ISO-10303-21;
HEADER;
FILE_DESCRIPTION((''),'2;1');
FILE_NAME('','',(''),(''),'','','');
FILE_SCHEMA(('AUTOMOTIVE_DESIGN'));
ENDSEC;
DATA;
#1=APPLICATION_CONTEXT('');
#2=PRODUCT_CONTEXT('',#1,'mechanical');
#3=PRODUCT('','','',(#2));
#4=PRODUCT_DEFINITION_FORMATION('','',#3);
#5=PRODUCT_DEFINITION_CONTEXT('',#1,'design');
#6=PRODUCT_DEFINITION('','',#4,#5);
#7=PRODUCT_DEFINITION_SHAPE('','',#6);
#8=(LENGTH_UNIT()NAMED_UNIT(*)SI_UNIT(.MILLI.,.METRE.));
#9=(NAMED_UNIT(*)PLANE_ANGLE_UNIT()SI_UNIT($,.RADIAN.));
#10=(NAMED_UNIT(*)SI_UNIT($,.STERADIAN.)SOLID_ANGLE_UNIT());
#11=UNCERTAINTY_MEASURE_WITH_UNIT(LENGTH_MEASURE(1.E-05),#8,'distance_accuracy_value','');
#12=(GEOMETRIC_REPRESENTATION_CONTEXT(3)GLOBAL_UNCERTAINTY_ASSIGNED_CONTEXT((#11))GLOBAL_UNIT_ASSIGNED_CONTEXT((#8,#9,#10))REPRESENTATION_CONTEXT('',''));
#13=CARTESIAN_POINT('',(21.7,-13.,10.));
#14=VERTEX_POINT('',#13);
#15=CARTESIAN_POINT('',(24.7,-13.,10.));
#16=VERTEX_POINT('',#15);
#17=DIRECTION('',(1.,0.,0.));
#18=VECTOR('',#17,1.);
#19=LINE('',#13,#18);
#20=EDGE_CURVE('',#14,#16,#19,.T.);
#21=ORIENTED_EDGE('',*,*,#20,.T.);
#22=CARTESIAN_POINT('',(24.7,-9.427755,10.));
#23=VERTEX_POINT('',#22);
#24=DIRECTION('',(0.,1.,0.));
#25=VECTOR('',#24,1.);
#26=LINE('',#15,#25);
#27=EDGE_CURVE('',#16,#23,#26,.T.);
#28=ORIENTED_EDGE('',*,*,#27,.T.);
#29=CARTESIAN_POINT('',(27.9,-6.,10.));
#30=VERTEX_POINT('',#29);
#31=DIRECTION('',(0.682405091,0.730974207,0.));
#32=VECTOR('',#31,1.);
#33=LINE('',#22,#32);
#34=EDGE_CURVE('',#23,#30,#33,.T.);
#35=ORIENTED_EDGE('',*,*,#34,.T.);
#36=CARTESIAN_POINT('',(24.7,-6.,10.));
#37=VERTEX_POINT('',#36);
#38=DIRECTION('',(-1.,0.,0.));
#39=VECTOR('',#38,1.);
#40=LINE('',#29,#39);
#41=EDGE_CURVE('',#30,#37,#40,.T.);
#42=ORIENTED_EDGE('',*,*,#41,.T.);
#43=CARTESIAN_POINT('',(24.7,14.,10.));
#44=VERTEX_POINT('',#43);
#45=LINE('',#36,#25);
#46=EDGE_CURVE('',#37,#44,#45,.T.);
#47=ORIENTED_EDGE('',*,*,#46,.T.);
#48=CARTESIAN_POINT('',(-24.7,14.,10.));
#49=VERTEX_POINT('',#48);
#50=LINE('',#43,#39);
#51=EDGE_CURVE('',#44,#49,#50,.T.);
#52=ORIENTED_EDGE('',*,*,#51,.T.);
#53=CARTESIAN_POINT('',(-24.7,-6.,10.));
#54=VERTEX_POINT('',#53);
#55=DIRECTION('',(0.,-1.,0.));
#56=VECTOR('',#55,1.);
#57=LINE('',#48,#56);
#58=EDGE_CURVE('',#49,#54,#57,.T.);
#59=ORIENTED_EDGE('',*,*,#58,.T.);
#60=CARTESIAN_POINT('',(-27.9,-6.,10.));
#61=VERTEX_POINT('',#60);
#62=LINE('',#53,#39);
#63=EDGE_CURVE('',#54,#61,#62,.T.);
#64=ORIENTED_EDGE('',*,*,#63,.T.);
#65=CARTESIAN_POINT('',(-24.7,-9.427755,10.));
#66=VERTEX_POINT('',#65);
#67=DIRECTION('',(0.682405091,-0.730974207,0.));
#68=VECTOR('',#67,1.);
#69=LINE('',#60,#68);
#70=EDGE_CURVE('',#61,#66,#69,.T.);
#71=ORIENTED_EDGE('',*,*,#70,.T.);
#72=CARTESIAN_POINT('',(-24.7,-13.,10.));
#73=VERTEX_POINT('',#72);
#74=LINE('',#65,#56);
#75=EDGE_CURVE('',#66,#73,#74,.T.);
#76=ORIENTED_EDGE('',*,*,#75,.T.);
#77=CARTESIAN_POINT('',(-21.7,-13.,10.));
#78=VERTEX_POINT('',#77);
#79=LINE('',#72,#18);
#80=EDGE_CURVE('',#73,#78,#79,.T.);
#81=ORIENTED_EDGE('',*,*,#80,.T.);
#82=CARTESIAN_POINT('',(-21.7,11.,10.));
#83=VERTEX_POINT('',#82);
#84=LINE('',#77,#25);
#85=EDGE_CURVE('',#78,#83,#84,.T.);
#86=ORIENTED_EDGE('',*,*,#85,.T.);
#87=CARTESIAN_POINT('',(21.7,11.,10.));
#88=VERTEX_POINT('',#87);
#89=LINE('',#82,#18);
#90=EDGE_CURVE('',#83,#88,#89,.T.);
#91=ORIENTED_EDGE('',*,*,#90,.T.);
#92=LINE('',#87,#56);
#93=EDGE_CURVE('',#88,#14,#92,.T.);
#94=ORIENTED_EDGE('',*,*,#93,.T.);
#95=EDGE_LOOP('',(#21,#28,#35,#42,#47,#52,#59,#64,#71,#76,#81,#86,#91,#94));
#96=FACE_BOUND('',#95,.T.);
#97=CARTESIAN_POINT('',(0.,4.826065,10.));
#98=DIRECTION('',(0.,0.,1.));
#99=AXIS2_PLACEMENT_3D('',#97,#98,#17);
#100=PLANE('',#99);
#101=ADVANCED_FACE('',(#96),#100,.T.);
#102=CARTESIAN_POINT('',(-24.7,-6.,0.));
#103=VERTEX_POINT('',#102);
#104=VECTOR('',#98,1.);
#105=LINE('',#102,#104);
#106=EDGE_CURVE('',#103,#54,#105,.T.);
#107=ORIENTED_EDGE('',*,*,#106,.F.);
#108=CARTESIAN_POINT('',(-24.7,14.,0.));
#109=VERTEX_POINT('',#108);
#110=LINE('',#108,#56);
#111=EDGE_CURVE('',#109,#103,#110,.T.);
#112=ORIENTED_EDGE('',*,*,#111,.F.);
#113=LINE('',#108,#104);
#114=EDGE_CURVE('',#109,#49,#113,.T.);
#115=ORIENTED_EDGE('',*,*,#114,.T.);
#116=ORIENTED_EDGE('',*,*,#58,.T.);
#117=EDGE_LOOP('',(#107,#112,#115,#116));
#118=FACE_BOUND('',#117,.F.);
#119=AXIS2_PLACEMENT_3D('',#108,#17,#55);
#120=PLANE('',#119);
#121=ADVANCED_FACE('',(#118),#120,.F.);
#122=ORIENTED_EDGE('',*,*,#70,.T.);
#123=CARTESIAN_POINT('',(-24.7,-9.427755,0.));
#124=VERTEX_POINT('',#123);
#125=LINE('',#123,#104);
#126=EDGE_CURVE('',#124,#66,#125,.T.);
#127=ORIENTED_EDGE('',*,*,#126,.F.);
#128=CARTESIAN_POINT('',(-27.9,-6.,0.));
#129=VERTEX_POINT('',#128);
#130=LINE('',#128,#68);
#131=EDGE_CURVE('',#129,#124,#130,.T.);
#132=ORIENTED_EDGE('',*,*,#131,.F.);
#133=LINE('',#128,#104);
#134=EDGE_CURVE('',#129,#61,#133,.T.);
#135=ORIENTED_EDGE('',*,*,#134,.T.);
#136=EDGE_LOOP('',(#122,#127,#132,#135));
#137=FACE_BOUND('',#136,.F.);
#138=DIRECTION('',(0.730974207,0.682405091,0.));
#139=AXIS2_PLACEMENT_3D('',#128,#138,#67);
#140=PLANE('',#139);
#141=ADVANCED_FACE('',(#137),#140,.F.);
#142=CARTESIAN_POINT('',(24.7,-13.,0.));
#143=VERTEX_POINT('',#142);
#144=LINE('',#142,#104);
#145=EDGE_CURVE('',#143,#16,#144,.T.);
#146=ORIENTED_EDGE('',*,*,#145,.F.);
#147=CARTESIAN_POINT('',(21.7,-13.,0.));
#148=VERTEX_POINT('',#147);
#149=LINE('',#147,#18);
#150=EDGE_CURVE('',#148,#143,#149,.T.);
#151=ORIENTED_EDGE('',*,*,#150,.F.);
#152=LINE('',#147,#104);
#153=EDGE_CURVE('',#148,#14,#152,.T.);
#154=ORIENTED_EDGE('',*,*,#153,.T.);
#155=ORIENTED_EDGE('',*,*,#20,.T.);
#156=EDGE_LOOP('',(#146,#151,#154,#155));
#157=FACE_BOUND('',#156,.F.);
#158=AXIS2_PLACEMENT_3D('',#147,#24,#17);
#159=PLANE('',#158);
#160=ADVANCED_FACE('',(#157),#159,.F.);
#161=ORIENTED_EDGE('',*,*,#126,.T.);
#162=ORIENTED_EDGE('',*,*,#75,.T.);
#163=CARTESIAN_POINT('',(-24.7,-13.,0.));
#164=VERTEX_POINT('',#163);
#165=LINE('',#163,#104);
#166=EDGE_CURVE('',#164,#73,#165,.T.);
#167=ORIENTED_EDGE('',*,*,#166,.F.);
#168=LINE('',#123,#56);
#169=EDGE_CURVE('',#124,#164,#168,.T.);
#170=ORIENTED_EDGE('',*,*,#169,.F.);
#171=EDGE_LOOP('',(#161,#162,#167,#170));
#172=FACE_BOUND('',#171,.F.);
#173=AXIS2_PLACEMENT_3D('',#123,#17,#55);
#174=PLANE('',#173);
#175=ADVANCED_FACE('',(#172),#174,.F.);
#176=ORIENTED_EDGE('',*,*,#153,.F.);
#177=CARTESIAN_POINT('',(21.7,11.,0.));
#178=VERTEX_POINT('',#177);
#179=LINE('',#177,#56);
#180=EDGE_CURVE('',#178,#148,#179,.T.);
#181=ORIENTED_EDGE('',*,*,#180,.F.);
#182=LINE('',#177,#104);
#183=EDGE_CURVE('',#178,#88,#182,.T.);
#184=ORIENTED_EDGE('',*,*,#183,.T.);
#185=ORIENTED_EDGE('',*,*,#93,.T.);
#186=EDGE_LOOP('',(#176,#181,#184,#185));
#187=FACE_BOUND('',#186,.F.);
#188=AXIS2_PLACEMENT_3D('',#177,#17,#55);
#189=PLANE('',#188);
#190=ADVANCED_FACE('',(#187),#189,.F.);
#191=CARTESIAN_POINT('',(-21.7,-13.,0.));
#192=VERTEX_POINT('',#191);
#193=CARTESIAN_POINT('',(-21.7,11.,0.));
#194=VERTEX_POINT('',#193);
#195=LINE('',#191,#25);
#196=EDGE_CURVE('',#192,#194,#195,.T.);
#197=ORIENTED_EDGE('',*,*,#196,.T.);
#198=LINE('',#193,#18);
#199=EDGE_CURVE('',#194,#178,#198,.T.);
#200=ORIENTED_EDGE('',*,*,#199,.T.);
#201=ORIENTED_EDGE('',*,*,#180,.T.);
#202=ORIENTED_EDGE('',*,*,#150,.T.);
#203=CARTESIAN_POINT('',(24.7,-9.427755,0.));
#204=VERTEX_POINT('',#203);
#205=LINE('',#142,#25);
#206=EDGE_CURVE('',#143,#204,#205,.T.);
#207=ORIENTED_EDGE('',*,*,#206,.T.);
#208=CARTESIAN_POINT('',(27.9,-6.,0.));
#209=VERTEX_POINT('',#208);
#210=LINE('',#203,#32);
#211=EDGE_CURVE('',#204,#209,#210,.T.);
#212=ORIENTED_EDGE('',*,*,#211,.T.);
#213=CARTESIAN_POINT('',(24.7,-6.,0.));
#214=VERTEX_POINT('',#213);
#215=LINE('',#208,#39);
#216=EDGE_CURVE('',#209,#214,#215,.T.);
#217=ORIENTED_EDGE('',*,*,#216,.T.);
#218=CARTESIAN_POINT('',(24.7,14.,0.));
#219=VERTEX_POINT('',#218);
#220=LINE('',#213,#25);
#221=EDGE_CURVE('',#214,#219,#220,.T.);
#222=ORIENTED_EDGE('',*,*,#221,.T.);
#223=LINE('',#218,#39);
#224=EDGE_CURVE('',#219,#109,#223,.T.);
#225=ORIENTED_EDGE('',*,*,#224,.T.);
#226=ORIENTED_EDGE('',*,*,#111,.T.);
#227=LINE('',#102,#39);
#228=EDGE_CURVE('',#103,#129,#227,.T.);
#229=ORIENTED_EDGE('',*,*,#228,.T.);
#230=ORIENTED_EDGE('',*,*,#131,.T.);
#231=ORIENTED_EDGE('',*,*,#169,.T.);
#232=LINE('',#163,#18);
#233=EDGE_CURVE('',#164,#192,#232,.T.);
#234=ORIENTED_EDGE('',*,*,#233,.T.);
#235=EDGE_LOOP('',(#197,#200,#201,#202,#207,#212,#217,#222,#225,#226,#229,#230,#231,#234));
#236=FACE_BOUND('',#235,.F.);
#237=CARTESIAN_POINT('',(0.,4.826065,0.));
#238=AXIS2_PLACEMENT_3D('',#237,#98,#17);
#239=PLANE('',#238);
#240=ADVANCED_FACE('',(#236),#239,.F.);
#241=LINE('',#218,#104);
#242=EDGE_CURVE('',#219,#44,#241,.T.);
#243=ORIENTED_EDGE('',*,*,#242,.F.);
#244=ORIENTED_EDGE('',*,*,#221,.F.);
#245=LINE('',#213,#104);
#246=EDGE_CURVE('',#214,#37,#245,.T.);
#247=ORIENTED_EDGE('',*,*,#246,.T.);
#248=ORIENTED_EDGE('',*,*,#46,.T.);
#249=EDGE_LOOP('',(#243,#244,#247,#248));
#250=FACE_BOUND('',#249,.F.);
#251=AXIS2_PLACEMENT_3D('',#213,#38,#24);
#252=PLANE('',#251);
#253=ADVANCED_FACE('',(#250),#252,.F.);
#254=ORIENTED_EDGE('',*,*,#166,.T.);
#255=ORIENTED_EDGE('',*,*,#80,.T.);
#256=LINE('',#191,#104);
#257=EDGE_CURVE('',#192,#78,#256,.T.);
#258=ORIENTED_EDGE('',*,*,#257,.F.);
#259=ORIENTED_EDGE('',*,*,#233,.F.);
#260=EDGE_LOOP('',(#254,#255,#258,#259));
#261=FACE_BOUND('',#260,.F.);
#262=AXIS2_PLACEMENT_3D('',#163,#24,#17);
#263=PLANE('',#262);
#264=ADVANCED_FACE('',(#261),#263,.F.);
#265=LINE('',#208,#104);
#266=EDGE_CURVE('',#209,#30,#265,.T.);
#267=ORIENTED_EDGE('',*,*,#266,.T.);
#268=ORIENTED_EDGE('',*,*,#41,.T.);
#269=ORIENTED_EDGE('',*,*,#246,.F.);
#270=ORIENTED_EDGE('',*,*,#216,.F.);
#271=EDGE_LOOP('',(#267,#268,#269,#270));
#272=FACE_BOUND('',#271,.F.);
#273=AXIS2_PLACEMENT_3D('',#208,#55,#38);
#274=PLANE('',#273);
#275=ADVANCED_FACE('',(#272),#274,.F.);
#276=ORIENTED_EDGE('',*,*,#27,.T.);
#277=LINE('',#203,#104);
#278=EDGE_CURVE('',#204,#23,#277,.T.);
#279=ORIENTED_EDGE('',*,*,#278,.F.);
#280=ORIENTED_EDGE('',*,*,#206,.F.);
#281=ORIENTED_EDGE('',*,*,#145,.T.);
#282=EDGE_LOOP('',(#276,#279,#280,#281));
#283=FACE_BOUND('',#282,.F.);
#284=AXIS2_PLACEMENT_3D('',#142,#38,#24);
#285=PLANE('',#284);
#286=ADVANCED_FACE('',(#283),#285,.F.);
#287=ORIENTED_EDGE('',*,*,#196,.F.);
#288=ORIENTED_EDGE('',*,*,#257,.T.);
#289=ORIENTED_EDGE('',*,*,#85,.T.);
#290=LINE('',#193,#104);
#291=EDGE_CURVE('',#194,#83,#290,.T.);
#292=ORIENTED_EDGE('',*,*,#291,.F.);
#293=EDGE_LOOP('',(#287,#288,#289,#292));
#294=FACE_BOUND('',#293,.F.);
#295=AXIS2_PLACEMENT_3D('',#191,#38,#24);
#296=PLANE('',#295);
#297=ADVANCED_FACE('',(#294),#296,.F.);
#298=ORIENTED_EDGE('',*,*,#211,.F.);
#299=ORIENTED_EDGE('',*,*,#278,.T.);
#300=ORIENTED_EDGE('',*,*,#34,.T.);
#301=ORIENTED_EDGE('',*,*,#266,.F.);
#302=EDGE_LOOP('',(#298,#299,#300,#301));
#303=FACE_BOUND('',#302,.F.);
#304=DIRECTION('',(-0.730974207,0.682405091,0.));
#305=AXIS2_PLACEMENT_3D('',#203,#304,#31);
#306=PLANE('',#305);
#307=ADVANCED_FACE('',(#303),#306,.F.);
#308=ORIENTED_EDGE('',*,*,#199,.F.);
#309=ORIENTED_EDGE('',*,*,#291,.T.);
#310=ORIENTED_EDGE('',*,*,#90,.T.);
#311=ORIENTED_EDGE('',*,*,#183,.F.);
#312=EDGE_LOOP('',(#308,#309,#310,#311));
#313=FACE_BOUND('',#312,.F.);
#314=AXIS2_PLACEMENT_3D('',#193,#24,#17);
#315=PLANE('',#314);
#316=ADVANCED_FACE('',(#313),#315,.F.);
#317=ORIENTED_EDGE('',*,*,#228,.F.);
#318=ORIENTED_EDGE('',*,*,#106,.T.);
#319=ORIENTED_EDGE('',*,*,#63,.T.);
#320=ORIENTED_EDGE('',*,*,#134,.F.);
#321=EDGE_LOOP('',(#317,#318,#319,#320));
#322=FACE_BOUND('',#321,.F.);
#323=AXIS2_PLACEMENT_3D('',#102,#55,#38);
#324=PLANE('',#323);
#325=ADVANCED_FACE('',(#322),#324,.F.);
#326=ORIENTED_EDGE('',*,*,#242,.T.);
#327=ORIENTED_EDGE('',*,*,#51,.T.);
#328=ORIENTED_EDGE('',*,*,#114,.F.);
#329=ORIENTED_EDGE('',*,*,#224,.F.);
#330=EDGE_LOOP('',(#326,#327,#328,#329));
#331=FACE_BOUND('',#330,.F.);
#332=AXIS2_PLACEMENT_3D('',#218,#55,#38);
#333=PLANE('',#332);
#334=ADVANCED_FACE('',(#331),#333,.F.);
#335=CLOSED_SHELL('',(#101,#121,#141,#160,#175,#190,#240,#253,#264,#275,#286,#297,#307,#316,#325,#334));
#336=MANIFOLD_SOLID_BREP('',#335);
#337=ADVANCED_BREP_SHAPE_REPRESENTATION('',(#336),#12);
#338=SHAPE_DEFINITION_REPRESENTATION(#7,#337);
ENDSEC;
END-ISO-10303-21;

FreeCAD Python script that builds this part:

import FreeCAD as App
import Part
import Sketcher
from FreeCAD import Vector
Q = App.Units.Quantity


def add_polygon(sketch, points):
    """Adds a closed chain of lines whose ends are joined by coincident constraints."""
    first, n = sketch.GeometryCount, len(points)
    for a, b in zip(points, points[1:] + points[:1]):
        sketch.addGeometry(Part.LineSegment(App.Vector(*a, 0), App.Vector(*b, 0)), False)
    for i in range(n):
        sketch.addConstraint(Sketcher.Constraint("Coincident", first + i, 2, first + (i + 1) % n, 1))

doc = App.newDocument("Part")
body = doc.addObject("PartDesign::Body", "Body")

# Sketch on XY plane
sketch1 = doc.addObject("Sketcher::SketchObject", "Sketch")
body.addObject(sketch1)
sketch1.AttachmentSupport = (doc.XY_Plane, [""])
sketch1.MapMode = "FlatFace"
add_polygon(sketch1, [(24.7, 14), (-24.7, 14), (-24.7, -6), (-27.9, -6), (-24.7, -9.4), (-24.7, -13), (-21.7, -13), (-21.7, 11), (21.7, 11), (21.7, -13), (24.7, -13), (24.7, -9.4), (27.9, -6), (24.7, -6)])  # lines 0-13
sketch1.addConstraint(Sketcher.Constraint("Horizontal", 0))
sketch1.addConstraint(Sketcher.Constraint("Vertical", 1))
sketch1.addConstraint(Sketcher.Constraint("Horizontal", 2))
sketch1.addConstraint(Sketcher.Constraint("Vertical", 4))
sketch1.addConstraint(Sketcher.Constraint("Horizontal", 5))
sketch1.addConstraint(Sketcher.Constraint("Vertical", 6))
sketch1.addConstraint(Sketcher.Constraint("Horizontal", 7))
sketch1.addConstraint(Sketcher.Constraint("Vertical", 8))
sketch1.addConstraint(Sketcher.Constraint("Horizontal", 9))
sketch1.addConstraint(Sketcher.Constraint("Vertical", 10))
sketch1.addConstraint(Sketcher.Constraint("Horizontal", 12))
sketch1.addConstraint(Sketcher.Constraint("Vertical", 13))
sketch1.addConstraint(Sketcher.Constraint("Symmetric", 5, 2, 8, 2, -2))
sketch1.addConstraint(Sketcher.Constraint("Symmetric", 3, 2, 10, 2, -2))
sketch1.addConstraint(Sketcher.Constraint("Symmetric", 2, 2, 11, 2, -2))
sketch1.addConstraint(Sketcher.Constraint("Vertical", 1, 2, 3, 2))
sketch1.addConstraint(Sketcher.Constraint("Vertical", 10, 2, 12, 2))
sketch1.addConstraint(Sketcher.Constraint("DistanceX", 5, 1, 5, 2, Q("3 mm")))
sketch1.addConstraint(Sketcher.Constraint("DistanceY", 1, 2, 1, 1, Q("20 mm")))
sketch1.addConstraint(Sketcher.Constraint("DistanceY", 6, 1, 6, 2, Q("24 mm")))
sketch1.addConstraint(Sketcher.Constraint("DistanceX", 0, 2, 0, 1, Q("49.4 mm")))
sketch1.addConstraint(Sketcher.Constraint("DistanceX", 2, 2, 2, 1, Q("3.2 mm")))
sketch1.addConstraint(Sketcher.Constraint("DistanceY", -1, 1, 0, 2, Q("14 mm")))
sketch1.addConstraint(Sketcher.Constraint("DistanceY", 4, 2, -1, 1, Q("13 mm")))
sketch1.addConstraint(Sketcher.Constraint("DistanceY", 4, 2, 4, 1, Q("3.572245 mm")))
pad1 = doc.addObject("PartDesign::Pad", "Pad")
body.addObject(pad1)
pad1.Profile = sketch1
pad1.Length = 10

doc.recompute()
